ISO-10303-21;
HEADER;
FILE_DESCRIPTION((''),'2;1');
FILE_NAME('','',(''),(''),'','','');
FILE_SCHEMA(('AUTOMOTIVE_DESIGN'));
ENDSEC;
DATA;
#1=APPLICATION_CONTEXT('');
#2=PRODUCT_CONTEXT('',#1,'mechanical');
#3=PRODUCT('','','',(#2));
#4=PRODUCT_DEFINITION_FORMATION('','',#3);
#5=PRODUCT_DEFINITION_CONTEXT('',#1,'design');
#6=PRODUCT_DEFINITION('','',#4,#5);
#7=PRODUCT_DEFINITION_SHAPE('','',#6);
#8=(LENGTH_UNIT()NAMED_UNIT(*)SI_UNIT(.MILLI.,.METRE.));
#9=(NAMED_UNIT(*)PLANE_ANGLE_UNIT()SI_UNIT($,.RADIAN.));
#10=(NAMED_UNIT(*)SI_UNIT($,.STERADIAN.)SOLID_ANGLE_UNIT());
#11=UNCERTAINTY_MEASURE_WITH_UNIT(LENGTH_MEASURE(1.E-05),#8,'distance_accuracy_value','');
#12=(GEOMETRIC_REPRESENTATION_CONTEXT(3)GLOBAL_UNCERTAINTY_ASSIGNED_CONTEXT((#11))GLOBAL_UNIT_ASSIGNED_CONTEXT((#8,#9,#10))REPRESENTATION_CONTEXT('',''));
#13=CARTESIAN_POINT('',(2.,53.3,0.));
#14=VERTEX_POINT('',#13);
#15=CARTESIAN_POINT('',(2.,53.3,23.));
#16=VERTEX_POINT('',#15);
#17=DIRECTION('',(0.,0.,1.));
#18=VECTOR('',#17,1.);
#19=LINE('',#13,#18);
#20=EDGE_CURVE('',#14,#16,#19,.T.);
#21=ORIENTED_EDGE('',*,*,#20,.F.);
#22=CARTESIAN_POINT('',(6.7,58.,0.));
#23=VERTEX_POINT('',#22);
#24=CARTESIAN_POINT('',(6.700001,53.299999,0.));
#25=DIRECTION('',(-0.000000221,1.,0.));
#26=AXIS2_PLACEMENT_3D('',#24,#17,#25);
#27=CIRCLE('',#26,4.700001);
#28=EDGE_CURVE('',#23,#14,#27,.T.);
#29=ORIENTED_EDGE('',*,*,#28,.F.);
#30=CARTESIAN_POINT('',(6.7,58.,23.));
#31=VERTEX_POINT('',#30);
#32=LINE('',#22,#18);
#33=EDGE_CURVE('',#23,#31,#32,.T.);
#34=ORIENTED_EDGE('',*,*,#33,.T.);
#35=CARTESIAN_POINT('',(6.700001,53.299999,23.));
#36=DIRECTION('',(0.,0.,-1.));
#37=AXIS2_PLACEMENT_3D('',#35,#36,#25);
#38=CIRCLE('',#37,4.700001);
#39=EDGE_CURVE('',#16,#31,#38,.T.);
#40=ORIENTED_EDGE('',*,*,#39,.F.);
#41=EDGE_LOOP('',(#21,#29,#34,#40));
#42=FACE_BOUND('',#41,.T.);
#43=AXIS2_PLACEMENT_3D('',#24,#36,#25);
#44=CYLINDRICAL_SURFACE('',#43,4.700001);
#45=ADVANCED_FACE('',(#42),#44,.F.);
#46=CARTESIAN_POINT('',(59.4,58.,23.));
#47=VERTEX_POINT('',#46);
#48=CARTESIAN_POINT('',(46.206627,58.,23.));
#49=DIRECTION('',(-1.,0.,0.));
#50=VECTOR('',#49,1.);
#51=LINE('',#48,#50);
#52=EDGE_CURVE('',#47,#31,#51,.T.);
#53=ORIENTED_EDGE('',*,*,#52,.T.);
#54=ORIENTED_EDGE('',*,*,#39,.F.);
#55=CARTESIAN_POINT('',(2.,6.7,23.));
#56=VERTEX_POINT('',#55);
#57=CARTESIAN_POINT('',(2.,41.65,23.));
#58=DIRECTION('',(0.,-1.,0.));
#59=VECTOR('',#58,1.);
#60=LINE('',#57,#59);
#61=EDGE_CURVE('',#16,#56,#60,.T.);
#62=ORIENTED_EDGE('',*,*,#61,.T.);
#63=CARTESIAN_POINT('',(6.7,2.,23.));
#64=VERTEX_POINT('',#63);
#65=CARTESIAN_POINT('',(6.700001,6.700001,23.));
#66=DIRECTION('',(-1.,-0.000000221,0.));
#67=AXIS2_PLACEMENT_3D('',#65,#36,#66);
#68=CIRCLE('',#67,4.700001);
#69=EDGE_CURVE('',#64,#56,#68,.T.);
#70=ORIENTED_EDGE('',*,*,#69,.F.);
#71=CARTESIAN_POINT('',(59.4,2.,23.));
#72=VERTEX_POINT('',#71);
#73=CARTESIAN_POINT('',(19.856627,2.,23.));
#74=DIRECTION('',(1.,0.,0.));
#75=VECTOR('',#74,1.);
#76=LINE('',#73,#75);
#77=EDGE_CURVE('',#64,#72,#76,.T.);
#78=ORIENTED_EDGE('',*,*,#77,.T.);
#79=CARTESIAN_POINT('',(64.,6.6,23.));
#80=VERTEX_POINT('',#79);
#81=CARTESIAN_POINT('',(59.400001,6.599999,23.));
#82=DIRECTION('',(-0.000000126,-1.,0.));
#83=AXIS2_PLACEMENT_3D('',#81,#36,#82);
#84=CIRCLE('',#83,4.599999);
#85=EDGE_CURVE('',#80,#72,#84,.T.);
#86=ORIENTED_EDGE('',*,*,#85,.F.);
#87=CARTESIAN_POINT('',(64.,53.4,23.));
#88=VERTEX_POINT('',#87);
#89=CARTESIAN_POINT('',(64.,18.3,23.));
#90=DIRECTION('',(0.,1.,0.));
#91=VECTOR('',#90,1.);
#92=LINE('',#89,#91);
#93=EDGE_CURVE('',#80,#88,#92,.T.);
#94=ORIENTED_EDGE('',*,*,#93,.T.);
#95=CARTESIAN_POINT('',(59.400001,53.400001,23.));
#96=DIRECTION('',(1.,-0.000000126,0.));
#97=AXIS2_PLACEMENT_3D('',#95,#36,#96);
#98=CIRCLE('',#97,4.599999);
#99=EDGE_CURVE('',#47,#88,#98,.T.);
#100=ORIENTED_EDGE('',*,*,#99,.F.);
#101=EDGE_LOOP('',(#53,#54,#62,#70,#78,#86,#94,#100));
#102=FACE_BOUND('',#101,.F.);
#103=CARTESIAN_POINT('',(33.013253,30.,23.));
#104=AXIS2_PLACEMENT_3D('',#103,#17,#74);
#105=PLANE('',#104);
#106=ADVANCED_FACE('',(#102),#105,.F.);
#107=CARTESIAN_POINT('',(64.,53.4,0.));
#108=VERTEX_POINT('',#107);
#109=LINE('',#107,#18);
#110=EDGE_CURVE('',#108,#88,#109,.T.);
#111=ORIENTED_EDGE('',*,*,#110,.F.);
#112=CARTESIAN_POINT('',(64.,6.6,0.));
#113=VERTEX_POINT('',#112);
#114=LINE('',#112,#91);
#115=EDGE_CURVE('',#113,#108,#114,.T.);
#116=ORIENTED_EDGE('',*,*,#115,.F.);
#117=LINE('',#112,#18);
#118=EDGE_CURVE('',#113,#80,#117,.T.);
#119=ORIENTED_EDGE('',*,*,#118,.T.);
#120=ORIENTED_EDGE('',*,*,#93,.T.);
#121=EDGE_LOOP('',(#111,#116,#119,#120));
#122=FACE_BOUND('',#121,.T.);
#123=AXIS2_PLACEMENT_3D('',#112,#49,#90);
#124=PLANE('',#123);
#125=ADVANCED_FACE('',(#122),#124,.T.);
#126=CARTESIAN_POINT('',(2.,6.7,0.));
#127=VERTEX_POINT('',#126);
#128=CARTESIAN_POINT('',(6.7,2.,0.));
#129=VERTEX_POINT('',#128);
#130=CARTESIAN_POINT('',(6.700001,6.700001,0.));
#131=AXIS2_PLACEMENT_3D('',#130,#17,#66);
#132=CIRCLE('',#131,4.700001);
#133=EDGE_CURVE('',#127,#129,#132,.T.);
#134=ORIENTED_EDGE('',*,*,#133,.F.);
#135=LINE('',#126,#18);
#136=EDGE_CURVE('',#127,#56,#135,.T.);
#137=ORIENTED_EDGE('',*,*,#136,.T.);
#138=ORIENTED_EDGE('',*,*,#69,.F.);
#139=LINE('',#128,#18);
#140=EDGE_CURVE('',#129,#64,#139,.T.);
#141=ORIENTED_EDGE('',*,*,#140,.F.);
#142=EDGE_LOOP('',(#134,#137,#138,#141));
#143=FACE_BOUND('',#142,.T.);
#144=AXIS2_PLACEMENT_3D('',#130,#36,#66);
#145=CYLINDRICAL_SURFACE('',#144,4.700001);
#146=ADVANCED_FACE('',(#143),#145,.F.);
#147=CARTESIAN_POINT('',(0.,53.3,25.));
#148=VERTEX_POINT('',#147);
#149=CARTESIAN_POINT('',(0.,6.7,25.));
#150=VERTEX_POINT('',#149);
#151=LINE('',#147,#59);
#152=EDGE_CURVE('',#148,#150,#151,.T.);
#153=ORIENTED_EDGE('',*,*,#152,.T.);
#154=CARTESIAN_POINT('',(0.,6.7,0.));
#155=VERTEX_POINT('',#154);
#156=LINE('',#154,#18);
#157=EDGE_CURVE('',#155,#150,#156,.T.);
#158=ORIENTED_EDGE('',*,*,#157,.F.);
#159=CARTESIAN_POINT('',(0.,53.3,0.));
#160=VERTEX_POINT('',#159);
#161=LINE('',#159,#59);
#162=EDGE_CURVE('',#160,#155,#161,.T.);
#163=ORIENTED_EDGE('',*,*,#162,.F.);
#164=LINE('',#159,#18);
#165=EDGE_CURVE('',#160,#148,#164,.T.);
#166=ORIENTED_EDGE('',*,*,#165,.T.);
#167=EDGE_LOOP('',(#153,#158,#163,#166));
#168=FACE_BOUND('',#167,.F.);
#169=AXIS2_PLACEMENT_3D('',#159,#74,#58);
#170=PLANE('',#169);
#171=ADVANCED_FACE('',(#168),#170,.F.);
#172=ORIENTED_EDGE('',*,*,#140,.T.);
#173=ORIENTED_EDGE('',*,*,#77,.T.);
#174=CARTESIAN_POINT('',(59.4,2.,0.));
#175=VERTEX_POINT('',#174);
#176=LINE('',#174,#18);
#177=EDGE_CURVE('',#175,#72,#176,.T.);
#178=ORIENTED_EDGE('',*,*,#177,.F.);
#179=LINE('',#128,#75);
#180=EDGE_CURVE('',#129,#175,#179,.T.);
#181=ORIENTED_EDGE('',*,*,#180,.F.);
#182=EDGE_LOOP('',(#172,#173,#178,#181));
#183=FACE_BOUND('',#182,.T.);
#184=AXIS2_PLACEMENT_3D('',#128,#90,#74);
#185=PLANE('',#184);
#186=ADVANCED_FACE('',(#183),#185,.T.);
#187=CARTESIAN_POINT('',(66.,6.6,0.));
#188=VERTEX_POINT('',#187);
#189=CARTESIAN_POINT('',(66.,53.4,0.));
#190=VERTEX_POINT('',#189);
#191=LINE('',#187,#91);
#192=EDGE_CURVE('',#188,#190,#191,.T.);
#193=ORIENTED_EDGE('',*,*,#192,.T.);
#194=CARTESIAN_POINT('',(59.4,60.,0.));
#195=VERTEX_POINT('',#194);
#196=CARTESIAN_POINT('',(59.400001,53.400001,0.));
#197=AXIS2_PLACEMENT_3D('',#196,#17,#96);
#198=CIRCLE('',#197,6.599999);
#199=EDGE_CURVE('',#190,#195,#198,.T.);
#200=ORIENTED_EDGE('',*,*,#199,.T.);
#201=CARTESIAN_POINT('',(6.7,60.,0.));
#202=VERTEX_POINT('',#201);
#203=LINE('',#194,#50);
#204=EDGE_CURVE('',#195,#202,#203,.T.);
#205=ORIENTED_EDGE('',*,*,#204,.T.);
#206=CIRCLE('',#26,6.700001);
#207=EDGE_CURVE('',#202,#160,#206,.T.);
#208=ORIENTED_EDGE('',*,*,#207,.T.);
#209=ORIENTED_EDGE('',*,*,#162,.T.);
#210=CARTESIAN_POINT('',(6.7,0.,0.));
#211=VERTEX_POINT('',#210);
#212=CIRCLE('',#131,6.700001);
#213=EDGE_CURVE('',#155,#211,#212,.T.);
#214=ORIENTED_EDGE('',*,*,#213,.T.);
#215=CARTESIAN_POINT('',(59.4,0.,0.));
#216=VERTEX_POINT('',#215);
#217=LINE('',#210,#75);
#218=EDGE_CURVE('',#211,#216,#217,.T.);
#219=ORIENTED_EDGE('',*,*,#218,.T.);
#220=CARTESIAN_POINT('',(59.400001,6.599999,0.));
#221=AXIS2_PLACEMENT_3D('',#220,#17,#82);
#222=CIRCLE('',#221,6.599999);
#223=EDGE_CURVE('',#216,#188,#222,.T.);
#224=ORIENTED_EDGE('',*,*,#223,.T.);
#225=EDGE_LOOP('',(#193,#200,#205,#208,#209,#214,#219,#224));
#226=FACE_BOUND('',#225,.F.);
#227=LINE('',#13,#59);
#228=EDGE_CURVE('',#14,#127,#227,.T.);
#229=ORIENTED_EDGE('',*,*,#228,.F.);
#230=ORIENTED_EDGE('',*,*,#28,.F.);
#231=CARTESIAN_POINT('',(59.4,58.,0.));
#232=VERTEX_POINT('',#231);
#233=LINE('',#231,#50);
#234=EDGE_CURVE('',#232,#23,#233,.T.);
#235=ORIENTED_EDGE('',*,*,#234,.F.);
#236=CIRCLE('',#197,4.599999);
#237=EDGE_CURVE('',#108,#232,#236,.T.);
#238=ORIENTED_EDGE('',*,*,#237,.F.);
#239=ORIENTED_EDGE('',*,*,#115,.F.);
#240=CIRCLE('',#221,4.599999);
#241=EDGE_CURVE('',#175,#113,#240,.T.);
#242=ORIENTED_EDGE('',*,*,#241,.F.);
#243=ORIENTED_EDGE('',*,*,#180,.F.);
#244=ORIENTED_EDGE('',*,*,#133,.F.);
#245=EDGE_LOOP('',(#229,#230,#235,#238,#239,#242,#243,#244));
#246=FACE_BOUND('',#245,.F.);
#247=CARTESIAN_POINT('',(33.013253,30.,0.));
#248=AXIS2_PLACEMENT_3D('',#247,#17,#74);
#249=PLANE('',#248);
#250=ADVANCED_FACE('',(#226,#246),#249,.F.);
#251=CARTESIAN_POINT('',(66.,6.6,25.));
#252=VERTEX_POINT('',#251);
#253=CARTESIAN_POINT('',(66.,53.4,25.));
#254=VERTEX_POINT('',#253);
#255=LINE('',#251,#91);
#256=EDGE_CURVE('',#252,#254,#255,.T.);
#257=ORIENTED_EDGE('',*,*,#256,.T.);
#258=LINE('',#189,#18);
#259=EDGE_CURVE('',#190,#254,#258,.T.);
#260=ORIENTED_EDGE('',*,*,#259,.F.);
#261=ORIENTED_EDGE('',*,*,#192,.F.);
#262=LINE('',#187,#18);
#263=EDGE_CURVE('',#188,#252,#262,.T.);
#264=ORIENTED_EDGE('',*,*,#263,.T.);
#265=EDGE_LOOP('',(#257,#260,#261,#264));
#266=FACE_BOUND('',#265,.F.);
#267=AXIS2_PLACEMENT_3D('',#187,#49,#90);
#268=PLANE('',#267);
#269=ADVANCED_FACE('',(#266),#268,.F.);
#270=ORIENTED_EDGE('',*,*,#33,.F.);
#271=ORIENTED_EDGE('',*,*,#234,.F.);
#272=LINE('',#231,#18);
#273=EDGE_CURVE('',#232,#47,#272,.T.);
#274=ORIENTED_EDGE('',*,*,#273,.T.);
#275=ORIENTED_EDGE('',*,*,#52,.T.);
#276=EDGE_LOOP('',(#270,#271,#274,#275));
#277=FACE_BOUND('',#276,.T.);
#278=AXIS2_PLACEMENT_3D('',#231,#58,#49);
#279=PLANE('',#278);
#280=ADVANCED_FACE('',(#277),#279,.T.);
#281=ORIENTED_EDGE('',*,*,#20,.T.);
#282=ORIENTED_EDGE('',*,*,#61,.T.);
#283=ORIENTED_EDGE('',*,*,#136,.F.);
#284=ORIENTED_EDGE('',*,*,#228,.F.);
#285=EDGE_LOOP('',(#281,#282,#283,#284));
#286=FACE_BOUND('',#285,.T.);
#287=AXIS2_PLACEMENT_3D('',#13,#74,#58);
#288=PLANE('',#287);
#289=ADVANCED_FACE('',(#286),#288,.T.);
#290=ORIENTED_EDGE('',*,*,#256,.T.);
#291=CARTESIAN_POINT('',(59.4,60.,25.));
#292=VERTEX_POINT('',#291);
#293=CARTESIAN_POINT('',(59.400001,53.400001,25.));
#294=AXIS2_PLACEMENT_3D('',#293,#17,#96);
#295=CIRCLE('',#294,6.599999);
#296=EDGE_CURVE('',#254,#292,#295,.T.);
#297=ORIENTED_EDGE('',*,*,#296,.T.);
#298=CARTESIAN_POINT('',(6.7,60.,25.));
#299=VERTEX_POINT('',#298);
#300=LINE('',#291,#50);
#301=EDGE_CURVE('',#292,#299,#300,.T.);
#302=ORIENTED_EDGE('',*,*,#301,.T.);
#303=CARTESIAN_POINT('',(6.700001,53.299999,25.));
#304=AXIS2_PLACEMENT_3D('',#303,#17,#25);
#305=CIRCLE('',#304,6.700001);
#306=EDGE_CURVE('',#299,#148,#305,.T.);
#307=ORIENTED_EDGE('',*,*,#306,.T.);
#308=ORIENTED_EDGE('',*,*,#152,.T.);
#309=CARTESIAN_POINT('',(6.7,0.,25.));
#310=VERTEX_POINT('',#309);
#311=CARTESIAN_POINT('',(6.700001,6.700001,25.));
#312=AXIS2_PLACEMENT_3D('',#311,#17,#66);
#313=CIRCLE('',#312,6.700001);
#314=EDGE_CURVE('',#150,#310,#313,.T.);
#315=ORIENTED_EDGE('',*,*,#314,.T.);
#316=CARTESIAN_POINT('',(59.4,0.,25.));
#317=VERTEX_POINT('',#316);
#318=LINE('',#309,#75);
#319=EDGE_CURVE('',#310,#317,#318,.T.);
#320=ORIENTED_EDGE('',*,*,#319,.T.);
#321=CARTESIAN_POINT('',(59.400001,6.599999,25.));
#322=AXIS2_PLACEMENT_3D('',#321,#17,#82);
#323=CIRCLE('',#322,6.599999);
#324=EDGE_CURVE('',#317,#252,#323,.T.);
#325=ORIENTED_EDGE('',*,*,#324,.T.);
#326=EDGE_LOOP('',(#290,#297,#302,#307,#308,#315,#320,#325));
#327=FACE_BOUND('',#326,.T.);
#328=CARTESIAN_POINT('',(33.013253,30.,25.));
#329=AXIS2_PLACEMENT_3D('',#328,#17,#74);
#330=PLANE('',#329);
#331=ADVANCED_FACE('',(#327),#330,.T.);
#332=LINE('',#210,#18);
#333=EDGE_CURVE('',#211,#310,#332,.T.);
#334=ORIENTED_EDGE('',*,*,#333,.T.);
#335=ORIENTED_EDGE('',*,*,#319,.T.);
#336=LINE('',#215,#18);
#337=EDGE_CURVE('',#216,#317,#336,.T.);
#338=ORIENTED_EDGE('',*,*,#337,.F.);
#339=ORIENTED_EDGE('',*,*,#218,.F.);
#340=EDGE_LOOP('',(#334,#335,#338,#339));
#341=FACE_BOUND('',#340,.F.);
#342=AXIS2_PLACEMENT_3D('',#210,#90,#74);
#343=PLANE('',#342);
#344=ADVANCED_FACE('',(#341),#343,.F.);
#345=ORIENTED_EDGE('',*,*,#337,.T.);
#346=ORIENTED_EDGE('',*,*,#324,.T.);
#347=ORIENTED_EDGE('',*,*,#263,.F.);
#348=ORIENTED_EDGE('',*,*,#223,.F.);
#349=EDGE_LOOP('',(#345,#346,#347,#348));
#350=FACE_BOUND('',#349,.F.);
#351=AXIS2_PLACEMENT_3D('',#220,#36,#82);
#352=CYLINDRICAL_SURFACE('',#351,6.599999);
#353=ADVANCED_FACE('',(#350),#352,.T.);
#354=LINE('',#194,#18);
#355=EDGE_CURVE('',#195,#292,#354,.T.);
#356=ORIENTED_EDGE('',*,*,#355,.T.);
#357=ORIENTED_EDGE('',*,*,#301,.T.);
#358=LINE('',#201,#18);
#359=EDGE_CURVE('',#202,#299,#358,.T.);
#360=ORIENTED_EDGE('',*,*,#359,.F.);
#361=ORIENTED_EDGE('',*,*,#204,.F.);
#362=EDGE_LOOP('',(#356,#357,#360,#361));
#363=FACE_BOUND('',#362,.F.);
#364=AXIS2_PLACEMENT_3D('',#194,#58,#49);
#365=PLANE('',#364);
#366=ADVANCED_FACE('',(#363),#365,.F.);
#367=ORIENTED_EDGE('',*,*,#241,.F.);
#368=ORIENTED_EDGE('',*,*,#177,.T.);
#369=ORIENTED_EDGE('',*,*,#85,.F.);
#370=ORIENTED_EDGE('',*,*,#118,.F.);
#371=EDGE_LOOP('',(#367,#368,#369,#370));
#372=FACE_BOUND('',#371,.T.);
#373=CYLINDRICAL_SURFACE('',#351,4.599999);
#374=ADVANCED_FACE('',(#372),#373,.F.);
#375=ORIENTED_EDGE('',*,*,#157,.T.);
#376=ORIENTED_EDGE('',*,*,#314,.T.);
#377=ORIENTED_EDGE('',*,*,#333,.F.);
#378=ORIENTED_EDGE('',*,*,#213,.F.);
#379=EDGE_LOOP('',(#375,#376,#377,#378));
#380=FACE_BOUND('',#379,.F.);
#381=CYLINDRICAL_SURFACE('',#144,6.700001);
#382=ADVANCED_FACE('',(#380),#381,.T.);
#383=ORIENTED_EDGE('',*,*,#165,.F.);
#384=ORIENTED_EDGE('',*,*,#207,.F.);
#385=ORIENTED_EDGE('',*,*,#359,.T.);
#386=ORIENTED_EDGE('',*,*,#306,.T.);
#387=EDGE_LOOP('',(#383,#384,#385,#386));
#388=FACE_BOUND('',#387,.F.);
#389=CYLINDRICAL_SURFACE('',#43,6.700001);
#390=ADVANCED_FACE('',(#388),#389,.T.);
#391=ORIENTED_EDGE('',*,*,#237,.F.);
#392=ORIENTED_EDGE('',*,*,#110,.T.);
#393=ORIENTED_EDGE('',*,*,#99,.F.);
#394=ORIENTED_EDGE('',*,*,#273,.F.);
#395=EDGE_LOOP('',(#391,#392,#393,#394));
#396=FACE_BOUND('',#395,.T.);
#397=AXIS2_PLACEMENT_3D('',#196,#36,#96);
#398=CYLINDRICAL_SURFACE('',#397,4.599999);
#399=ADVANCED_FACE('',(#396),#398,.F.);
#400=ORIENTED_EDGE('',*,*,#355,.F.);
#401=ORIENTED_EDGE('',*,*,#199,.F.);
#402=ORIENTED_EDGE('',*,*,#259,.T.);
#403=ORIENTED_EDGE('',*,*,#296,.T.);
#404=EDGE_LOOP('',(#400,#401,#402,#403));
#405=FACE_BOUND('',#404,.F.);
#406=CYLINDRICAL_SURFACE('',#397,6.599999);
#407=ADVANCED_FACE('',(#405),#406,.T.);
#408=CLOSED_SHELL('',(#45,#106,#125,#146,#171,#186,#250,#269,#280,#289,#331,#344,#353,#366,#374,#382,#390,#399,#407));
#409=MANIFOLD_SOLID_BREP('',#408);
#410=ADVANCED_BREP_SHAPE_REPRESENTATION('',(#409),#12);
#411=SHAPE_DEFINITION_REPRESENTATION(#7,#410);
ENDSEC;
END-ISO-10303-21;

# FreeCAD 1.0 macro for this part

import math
import FreeCAD as App
import Part
import Sketcher


def faces_at(feature, points):
    """Names of the faces that lie closest to the given points."""
    faces = feature.Shape.Faces
    near = lambda p: min(range(len(faces)), key=lambda i: faces[i].distToShape(Part.Vertex(*p))[0])
    return sorted({f"Face{near(p) + 1}" for p in points})

doc = App.newDocument("Part")
body = doc.addObject("PartDesign::Body", "Body")

# Sketch on XY plane
sketch1 = body.newObject("Sketcher::SketchObject", "Sketch")
sketch1.AttachmentSupport = (doc.getObject("XY_Plane"), [""])
sketch1.MapMode = "FlatFace"
sketch1.addGeometry([
    Part.LineSegment(App.Vector(7, 0, 0), App.Vector(59, 0, 0)),  # 0
    Part.ArcOfCircle(Part.Circle(App.Vector(59, 7, 0), App.Vector(0, 0, 1), 7), math.radians(-90), math.radians(0)),  # 1
    Part.LineSegment(App.Vector(66, 7, 0), App.Vector(66, 53, 0)),  # 2
    Part.ArcOfCircle(Part.Circle(App.Vector(59, 53, 0), App.Vector(0, 0, 1), 7), math.radians(0), math.radians(90)),  # 3
    Part.LineSegment(App.Vector(59, 60, 0), App.Vector(7, 60, 0)),  # 4
    Part.ArcOfCircle(Part.Circle(App.Vector(7, 53, 0), App.Vector(0, 0, 1), 7), math.radians(90), math.radians(180)),  # 5
    Part.LineSegment(App.Vector(0, 53, 0), App.Vector(0, 7, 0)),  # 6
    Part.ArcOfCircle(Part.Circle(App.Vector(7, 7, 0), App.Vector(0, 0, 1), 7), math.radians(-180), math.radians(-90)),  # 7
], False)
sketch1.addConstraint([
    Sketcher.Constraint("Tangent", 0, 2, 1, 1),
    Sketcher.Constraint("Tangent", 1, 2, 2, 1),
    Sketcher.Constraint("Tangent", 2, 2, 3, 1),
    Sketcher.Constraint("Tangent", 3, 2, 4, 1),
    Sketcher.Constraint("Tangent", 4, 2, 5, 1),
    Sketcher.Constraint("Tangent", 5, 2, 6, 1),
    Sketcher.Constraint("Tangent", 6, 2, 7, 1),
    Sketcher.Constraint("Tangent", 7, 2, 0, 1),
    Sketcher.Constraint("Horizontal", 0),
    Sketcher.Constraint("Vertical", 2),
    Sketcher.Constraint("Horizontal", 4),
    Sketcher.Constraint("Vertical", 6),
    Sketcher.Constraint("Equal", 1, 3),
    Sketcher.Constraint("Equal", 5, 7),
    Sketcher.Constraint("PointOnObject", 0, 2, -1),
    Sketcher.Constraint("PointOnObject", 5, 2, -2),
    Sketcher.Constraint("Radius", 1, 6.599999),
    Sketcher.Constraint("Radius", 5, 6.700001),
    Sketcher.Constraint("DistanceX", 0, 1, 0, 2, 52.7),
    Sketcher.Constraint("DistanceY", 2, 1, 2, 2, 46.8),
])
pad1 = body.newObject("PartDesign::Pad", "Pad")
pad1.Profile = sketch1
pad1.Length = 25
doc.recompute()

thickness = body.newObject("PartDesign::Thickness", "Thickness")
thickness.Base = (pad1, faces_at(pad1, [(33, 30, 0)]))
thickness.Value = 2
thickness.Reversed = True
thickness.Join = "Arc"

doc.recompute()
